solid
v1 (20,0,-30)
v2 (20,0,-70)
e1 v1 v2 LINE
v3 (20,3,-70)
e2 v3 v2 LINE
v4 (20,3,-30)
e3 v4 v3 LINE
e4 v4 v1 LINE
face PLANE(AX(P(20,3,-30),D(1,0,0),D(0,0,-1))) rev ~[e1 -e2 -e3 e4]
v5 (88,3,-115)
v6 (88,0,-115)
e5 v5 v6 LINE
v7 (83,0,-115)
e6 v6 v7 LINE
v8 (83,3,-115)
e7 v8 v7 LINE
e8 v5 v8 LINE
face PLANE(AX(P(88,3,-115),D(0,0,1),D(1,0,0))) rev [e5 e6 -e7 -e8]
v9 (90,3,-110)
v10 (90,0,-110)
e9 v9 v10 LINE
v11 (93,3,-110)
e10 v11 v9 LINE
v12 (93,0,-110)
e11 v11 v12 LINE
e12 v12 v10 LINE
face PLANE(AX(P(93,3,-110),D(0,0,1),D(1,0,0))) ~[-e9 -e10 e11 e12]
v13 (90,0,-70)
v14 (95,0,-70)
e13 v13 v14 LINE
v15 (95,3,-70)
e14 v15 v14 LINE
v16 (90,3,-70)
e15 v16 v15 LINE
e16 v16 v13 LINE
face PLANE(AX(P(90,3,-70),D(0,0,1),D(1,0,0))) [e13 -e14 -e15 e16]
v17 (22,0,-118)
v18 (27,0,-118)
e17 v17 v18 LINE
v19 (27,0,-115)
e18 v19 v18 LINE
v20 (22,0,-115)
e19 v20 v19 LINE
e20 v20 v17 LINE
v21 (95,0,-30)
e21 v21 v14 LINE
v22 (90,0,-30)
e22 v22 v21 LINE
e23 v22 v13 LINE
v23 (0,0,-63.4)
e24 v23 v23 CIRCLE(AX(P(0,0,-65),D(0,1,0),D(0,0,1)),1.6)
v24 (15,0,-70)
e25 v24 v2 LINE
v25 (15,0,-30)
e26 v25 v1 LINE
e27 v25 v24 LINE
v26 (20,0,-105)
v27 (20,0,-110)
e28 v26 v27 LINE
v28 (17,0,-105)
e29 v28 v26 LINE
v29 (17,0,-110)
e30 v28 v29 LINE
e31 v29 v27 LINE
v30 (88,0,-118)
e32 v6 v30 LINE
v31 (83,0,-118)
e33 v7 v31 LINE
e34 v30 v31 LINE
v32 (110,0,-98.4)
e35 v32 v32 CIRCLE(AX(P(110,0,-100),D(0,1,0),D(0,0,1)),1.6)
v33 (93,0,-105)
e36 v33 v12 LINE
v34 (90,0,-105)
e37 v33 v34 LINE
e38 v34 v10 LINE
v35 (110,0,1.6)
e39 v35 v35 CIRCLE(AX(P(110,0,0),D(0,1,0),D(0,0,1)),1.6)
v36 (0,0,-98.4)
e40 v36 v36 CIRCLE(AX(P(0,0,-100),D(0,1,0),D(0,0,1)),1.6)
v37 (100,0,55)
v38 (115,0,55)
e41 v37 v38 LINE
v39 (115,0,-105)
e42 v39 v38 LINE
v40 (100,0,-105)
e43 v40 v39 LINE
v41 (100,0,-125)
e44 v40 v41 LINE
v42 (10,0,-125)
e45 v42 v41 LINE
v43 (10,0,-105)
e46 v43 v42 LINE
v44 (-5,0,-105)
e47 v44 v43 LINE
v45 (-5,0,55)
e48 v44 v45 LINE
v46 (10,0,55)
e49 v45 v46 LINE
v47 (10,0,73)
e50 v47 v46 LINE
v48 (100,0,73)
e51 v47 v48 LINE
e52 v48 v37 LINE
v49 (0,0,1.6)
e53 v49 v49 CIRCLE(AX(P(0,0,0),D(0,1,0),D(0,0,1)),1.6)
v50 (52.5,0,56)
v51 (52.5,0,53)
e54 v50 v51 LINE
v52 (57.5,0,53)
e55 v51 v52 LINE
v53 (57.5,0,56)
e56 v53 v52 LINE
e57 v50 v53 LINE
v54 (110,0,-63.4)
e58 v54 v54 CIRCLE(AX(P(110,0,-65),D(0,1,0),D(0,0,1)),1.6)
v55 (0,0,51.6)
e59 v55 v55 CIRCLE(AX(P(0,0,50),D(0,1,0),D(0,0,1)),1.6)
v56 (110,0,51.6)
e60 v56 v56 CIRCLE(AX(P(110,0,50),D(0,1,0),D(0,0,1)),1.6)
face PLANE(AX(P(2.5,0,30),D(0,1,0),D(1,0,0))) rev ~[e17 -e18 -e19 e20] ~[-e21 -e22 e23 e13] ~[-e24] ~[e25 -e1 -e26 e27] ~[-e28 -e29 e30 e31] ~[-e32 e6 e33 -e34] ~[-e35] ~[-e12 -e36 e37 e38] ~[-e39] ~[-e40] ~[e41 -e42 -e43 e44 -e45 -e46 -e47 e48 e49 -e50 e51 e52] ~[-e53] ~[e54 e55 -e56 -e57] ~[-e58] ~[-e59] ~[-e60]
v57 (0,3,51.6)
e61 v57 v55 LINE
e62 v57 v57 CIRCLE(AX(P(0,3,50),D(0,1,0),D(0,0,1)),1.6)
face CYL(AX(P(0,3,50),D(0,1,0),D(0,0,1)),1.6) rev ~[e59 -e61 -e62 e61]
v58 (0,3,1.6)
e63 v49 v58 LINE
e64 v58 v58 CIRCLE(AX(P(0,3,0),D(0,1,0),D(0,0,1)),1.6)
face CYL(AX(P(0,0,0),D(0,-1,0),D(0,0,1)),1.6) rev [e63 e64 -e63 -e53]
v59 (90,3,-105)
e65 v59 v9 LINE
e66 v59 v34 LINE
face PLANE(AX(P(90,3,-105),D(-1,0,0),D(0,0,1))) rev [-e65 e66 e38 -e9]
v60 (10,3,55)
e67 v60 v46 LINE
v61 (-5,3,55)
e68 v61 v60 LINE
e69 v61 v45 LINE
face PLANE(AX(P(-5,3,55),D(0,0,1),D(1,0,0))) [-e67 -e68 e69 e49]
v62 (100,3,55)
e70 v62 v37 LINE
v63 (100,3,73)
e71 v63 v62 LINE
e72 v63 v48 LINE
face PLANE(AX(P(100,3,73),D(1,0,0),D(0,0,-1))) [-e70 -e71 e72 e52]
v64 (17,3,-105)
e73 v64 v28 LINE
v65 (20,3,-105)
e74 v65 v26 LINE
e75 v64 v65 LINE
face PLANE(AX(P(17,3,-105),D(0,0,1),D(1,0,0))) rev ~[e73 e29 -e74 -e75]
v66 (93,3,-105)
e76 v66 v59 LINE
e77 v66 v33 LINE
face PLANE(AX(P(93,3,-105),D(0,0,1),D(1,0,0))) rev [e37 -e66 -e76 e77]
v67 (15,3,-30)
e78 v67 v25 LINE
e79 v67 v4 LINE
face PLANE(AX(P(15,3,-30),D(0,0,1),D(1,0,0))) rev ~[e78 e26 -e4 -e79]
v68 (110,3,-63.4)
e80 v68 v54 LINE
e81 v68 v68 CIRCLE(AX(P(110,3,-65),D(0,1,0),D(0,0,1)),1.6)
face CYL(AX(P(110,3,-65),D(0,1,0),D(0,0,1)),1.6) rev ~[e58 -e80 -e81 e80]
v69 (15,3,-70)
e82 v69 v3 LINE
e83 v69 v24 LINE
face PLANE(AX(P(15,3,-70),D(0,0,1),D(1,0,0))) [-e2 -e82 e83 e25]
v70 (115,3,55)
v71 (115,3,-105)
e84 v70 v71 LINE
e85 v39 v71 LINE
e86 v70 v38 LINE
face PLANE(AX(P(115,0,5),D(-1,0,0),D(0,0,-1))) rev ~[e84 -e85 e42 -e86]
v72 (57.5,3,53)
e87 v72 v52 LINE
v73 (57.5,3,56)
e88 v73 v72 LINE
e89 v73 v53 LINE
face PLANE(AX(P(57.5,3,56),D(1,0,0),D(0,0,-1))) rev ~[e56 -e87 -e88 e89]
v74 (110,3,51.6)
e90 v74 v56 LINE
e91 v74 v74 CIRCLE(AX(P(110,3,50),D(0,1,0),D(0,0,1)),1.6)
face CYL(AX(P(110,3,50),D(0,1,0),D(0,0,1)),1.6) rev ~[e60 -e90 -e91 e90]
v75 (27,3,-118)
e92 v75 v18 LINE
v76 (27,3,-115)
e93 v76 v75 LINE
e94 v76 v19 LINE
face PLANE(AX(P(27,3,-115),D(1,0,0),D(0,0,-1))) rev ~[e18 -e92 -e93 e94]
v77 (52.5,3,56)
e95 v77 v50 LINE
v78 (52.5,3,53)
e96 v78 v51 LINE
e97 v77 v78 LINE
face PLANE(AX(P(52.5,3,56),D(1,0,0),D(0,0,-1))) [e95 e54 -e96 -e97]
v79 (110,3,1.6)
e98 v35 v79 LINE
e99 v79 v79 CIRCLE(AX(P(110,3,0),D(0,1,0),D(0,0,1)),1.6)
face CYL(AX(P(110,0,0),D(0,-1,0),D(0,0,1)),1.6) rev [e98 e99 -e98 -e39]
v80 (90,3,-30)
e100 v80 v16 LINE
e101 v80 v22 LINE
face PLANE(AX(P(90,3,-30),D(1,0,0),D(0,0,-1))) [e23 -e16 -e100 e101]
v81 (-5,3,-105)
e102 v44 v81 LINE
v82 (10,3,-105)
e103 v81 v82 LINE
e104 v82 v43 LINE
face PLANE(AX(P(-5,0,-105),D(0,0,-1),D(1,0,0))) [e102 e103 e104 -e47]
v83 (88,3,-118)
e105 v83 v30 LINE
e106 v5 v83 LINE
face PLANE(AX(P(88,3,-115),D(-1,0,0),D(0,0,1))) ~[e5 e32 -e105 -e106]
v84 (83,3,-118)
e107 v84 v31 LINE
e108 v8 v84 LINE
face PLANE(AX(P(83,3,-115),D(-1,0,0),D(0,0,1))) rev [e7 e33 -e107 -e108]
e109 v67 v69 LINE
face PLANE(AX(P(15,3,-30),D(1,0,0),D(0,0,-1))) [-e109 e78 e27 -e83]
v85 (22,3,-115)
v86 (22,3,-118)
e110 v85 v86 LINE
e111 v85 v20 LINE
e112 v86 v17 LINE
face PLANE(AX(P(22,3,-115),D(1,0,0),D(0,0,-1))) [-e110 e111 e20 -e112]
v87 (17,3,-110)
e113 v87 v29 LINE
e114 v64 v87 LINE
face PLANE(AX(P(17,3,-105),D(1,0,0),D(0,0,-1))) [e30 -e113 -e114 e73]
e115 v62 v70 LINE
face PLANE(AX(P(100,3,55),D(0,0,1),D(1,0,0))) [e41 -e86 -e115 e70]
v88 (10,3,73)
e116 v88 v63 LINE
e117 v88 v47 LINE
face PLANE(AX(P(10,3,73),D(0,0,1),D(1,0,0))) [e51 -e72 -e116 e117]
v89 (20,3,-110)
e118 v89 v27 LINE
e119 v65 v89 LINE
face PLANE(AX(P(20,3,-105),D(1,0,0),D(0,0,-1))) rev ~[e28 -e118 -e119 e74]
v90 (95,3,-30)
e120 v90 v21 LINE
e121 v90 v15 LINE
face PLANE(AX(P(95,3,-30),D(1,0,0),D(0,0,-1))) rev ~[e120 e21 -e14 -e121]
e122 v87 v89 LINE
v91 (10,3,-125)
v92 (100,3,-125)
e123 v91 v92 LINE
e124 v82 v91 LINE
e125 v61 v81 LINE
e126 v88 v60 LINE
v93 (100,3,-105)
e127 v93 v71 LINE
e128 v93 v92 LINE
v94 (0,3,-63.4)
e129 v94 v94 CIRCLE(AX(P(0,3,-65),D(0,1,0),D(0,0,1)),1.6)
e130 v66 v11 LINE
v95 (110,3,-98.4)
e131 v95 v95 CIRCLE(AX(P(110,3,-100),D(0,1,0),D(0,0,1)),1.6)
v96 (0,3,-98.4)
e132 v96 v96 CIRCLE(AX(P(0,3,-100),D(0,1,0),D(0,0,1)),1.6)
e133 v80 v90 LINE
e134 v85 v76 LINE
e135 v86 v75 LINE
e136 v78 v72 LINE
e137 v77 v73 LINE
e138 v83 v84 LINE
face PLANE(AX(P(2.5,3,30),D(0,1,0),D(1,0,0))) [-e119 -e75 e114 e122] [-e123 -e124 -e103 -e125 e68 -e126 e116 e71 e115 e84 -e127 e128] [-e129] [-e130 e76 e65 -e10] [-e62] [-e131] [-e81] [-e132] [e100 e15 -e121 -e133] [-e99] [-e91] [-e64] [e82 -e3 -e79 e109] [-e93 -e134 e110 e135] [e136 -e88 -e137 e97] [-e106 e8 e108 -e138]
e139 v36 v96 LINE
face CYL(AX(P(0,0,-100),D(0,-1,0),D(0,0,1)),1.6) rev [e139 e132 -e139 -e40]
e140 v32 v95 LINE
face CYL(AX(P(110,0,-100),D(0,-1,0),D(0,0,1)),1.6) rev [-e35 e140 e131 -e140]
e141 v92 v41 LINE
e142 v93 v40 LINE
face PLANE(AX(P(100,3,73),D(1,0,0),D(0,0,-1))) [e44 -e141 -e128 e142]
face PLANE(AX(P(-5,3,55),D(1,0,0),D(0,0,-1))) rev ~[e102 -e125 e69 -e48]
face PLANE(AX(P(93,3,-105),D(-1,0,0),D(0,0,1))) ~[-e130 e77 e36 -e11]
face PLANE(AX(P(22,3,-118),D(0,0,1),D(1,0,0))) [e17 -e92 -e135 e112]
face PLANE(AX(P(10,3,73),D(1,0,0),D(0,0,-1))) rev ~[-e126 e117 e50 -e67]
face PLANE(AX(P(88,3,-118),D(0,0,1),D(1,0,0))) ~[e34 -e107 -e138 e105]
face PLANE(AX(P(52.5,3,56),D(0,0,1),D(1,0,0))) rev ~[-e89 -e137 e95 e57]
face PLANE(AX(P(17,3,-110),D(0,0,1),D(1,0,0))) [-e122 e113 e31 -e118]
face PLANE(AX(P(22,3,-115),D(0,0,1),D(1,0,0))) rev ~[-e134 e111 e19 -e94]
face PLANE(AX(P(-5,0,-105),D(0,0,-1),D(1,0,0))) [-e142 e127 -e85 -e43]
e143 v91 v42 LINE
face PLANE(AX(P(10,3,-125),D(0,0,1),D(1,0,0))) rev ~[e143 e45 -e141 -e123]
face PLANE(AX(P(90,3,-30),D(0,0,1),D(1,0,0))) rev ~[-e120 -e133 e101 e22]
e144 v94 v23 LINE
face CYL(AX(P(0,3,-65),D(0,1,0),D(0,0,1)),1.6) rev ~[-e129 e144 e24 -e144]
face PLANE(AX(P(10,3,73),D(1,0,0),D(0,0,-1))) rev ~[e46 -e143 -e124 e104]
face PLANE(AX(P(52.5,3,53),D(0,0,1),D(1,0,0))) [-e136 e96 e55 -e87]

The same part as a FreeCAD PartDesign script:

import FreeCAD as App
import Part
import Sketcher

V = App.Vector


def add_polygon(sketch, points):
    """Adds a closed chain of lines whose ends are joined by coincident constraints."""
    first, n = sketch.GeometryCount, len(points)
    for a, b in zip(points, points[1:] + points[:1]):
        sketch.addGeometry(Part.LineSegment(App.Vector(*a, 0), App.Vector(*b, 0)), False)
    for i in range(n):
        sketch.addConstraint(Sketcher.Constraint("Coincident", first + i, 2, first + (i + 1) % n, 1))

doc = App.newDocument("Part")
params = doc.addObject("Spreadsheet::Sheet", "Params")
for row, (alias, value) in enumerate([
    ("sketch1_diameter", "3.2 mm"),
    ("sketch1_width", "120 mm"),
    ("sketch1_height", "110 mm"),
    ("pad1_length", "3 mm"),
    ("sketch2_width", "90 mm"),
    ("sketch2_height", "198 mm"),
    ("pad2_length", "3 mm"),
    ("sketch3_width", "5 mm"),
    ("sketch3_width2", "3 mm"),
    ("sketch4_width", "5 mm"),
    ("sketch4_height", "3 mm"),
    ("sketch5_width", "5 mm"),
    ("sketch5_height", "40 mm"),
    ("sketch6_width", "15 mm"),
    ("sketch6_height", "50 mm"),
    ("pad3_length", "3 mm"),
    ("sketch7_diameter", "3.2 mm"),
], start=1):
    params.set(f"A{row}", alias)
    params.set(f"B{row}", "=" + value)
    params.setAlias(f"B{row}", alias)

body = doc.addObject("PartDesign::Body", "Body")

sketch1 = body.newObject("Sketcher::SketchObject", "Sketch")
sketch1.AttachmentSupport = (doc.getObject("XZ_Plane"), [""])
sketch1.MapMode = "FlatFace"
add_polygon(sketch1, [(-5, -105), (-5, 5), (115, 5), (115, -105)])
sketch1.addGeometry(Part.Circle(V(0, 0, 0), V(0, 0, 1), 1.6), False)
sketch1.addGeometry(Part.Circle(V(110, 0, 0), V(0, 0, 1), 1.6), False)
sketch1.addGeometry(Part.Circle(V(0, -100, 0), V(0, 0, 1), 1.6), False)
sketch1.addGeometry(Part.Circle(V(110, -100, 0), V(0, 0, 1), 1.6), False)
sketch1.addConstraint(Sketcher.Constraint("Vertical", 0))
sketch1.addConstraint(Sketcher.Constraint("Horizontal", 1))
sketch1.addConstraint(Sketcher.Constraint("Vertical", 2))
sketch1.addConstraint(Sketcher.Constraint("Horizontal", 3))
sketch1.addConstraint(Sketcher.Constraint("Coincident", 4, 3, -1, 1))
sketch1.addConstraint(Sketcher.Constraint("Equal", 4, 5))
sketch1.addConstraint(Sketcher.Constraint("Equal", 5, 6))
sketch1.addConstraint(Sketcher.Constraint("Equal", 6, 7))
sketch1.addConstraint(Sketcher.Constraint("PointOnObject", 5, 3, -1))
sketch1.addConstraint(Sketcher.Constraint("PointOnObject", 6, 3, -2))
sketch1.addConstraint(Sketcher.Constraint("Horizontal", 6, 3, 7, 3))
sketch1.addConstraint(Sketcher.Constraint("Vertical", 5, 3, 7, 3))
sketch1.addConstraint(Sketcher.Constraint("Diameter", 4, 3.2))
sketch1.addConstraint(Sketcher.Constraint("DistanceX", 1, 1, 1, 2, 120.0))
sketch1.addConstraint(Sketcher.Constraint("DistanceY", 0, 1, 0, 2, 110.0))
sketch1.addConstraint(Sketcher.Constraint("DistanceX", -1, 1, 5, 3, 110.0))
sketch1.addConstraint(Sketcher.Constraint("DistanceY", 6, 3, -1, 1, 100.0))
sketch1.addConstraint(Sketcher.Constraint("DistanceX", 0, 2, -1, 1, 5.0))
sketch1.addConstraint(Sketcher.Constraint("DistanceY", -1, 1, 0, 2, 5.0))
sketch1.setExpression("Constraints[16]", "Params.sketch1_diameter")
sketch1.setExpression("Constraints[17]", "Params.sketch1_width")
sketch1.setExpression("Constraints[18]", "Params.sketch1_height")
pad1 = body.newObject("PartDesign::Pad", "Pad")
pad1.Profile = sketch1
pad1.setExpression("Length", "Params.pad1_length")
pad1.Reversed = True

sketch2 = body.newObject("Sketcher::SketchObject", "Sketch001")
sketch2.AttachmentSupport = (doc.getObject("XZ_Plane"), [""])
sketch2.MapMode = "FlatFace"
sketch2.AttachmentOffset = App.Placement(V(0, 0, -3), App.Rotation())
add_polygon(sketch2, [(10, -125), (10, 73), (100, 73), (100, -125)])
sketch2.addConstraint(Sketcher.Constraint("Vertical", 0))
sketch2.addConstraint(Sketcher.Constraint("Horizontal", 1))
sketch2.addConstraint(Sketcher.Constraint("Vertical", 2))
sketch2.addConstraint(Sketcher.Constraint("Horizontal", 3))
sketch2.addConstraint(Sketcher.Constraint("DistanceX", 1, 1, 1, 2, 90.0))
sketch2.addConstraint(Sketcher.Constraint("DistanceY", 0, 1, 0, 2, 198.0))
sketch2.addConstraint(Sketcher.Constraint("DistanceX", -1, 1, 0, 2, 10.0))
sketch2.addConstraint(Sketcher.Constraint("DistanceY", -1, 1, 0, 2, 73.0))
sketch2.setExpression("Constraints[8]", "Params.sketch2_width")
sketch2.setExpression("Constraints[9]", "Params.sketch2_height")
pad2 = body.newObject("PartDesign::Pad", "Pad001")
pad2.Profile = sketch2
pad2.setExpression("Length", "Params.pad2_length")

sketch3 = body.newObject("Sketcher::SketchObject", "Sketch002")
sketch3.AttachmentSupport = (doc.getObject("XZ_Plane"), [""])
sketch3.MapMode = "FlatFace"
sketch3.AttachmentOffset = App.Placement(V(0, 0, -3), App.Rotation())
add_polygon(sketch3, [(22, -118), (22, -115), (27, -115), (27, -118)])
add_polygon(sketch3, [(17, -110), (17, -105), (20, -105), (20, -110)])
sketch3.addConstraint(Sketcher.Constraint("Vertical", 0))
sketch3.addConstraint(Sketcher.Constraint("Horizontal", 1))
sketch3.addConstraint(Sketcher.Constraint("Vertical", 2))
sketch3.addConstraint(Sketcher.Constraint("Horizontal", 3))
sketch3.addConstraint(Sketcher.Constraint("Vertical", 4))
sketch3.addConstraint(Sketcher.Constraint("Horizontal", 5))
sketch3.addConstraint(Sketcher.Constraint("Vertical", 6))
sketch3.addConstraint(Sketcher.Constraint("Horizontal", 7))
sketch3.addConstraint(Sketcher.Constraint("Equal", 7, 0))
sketch3.addConstraint(Sketcher.Constraint("Equal", 3, 4))
sketch3.addConstraint(Sketcher.Constraint("DistanceX", 1, 1, 1, 2, 5.0))
sketch3.addConstraint(Sketcher.Constraint("DistanceX", 5, 1, 5, 2, 3.0))
sketch3.addConstraint(Sketcher.Constraint("DistanceX", -1, 1, 0, 2, 22.0))
sketch3.addConstraint(Sketcher.Constraint("DistanceY", 0, 2, -1, 1, 115.0))
sketch3.addConstraint(Sketcher.Constraint("DistanceX", -1, 1, 4, 2, 17.0))
sketch3.addConstraint(Sketcher.Constraint("DistanceY", 4, 2, -1, 1, 105.0))
sketch3.setExpression("Constraints[18]", "Params.sketch3_width")
sketch3.setExpression("Constraints[19]", "Params.sketch3_width2")
pocket1 = body.newObject("PartDesign::Pocket", "Pocket")
pocket1.Profile = sketch3
pocket1.Type = "ThroughAll"
pocket1.Reversed = True
doc.recompute()

datumplane = body.newObject("PartDesign::Plane", "DatumPlane")
datumplane.AttachmentSupport = (doc.getObject("YZ_Plane"), [""])
datumplane.MapMode = "FlatFace"
datumplane.AttachmentOffset = App.Placement(V(0, 0, 55), App.Rotation())
mirrored = body.newObject("PartDesign::Mirrored", "Mirrored")
mirrored.Originals = [pocket1]
mirrored.MirrorPlane = (datumplane, [""])
body.Tip = mirrored

sketch4 = body.newObject("Sketcher::SketchObject", "Sketch003")
sketch4.AttachmentSupport = (doc.getObject("XZ_Plane"), [""])
sketch4.MapMode = "FlatFace"
sketch4.AttachmentOffset = App.Placement(V(0, 0, -3), App.Rotation())
add_polygon(sketch4, [(52.5, 53), (52.5, 56), (57.5, 56), (57.5, 53)])
sketch4.addConstraint(Sketcher.Constraint("Vertical", 0))
sketch4.addConstraint(Sketcher.Constraint("Horizontal", 1))
sketch4.addConstraint(Sketcher.Constraint("Vertical", 2))
sketch4.addConstraint(Sketcher.Constraint("Horizontal", 3))
sketch4.addConstraint(Sketcher.Constraint("DistanceX", 1, 1, 1, 2, 5.0))
sketch4.addConstraint(Sketcher.Constraint("DistanceY", 0, 1, 0, 2, 3.0))
sketch4.addConstraint(Sketcher.Constraint("DistanceY", -1, 1, 0, 2, 56.0))
sketch4.addConstraint(Sketcher.Constraint("DistanceX", -1, 1, 0, 2, 52.5))
sketch4.setExpression("Constraints[8]", "Params.sketch4_width")
sketch4.setExpression("Constraints[9]", "Params.sketch4_height")
pocket2 = body.newObject("PartDesign::Pocket", "Pocket001")
pocket2.Profile = sketch4
pocket2.Type = "ThroughAll"
pocket2.Reversed = True

sketch5 = body.newObject("Sketcher::SketchObject", "Sketch004")
sketch5.AttachmentSupport = (doc.getObject("XZ_Plane"), [""])
sketch5.MapMode = "FlatFace"
sketch5.AttachmentOffset = App.Placement(V(0, 0, -3), App.Rotation())
add_polygon(sketch5, [(15, -70), (15, -30), (20, -30), (20, -70)])
add_polygon(sketch5, [(90, -70), (90, -30), (95, -30), (95, -70)])
sketch5.addConstraint(Sketcher.Constraint("Vertical", 0))
sketch5.addConstraint(Sketcher.Constraint("Horizontal", 1))
sketch5.addConstraint(Sketcher.Constraint("Vertical", 2))
sketch5.addConstraint(Sketcher.Constraint("Horizontal", 3))
sketch5.addConstraint(Sketcher.Constraint("Vertical", 4))
sketch5.addConstraint(Sketcher.Constraint("Horizontal", 5))
sketch5.addConstraint(Sketcher.Constraint("Vertical", 6))
sketch5.addConstraint(Sketcher.Constraint("Horizontal", 7))
sketch5.addConstraint(Sketcher.Constraint("Horizontal", 1, 2, 4, 2))
sketch5.addConstraint(Sketcher.Constraint("Horizontal", 3, 2, 6, 2))
sketch5.addConstraint(Sketcher.Constraint("Equal", 3, 5))
sketch5.addConstraint(Sketcher.Constraint("DistanceX", 1, 1, 1, 2, 5.0))
sketch5.addConstraint(Sketcher.Constraint("DistanceY", 0, 1, 0, 2, 40.0))
sketch5.addConstraint(Sketcher.Constraint("DistanceX", -1, 1, 0, 2, 15.0))
sketch5.addConstraint(Sketcher.Constraint("DistanceY", 0, 2, -1, 1, 30.0))
sketch5.addConstraint(Sketcher.Constraint("DistanceX", -1, 1, 4, 2, 90.0))
sketch5.setExpression("Constraints[19]", "Params.sketch5_width")
sketch5.setExpression("Constraints[20]", "Params.sketch5_height")
pocket3 = body.newObject("PartDesign::Pocket", "Pocket002")
pocket3.Profile = sketch5
pocket3.Type = "ThroughAll"
pocket3.Reversed = True

sketch6 = body.newObject("Sketcher::SketchObject", "Sketch005")
sketch6.AttachmentSupport = (doc.getObject("XZ_Plane"), [""])
sketch6.MapMode = "FlatFace"
sketch6.AttachmentOffset = App.Placement(V(0, 0, -3), App.Rotation())
add_polygon(sketch6, [(-5, 5), (-5, 55), (10, 55), (10, 5)])
add_polygon(sketch6, [(100, 5), (100, 55), (115, 55), (115, 5)])
sketch6.addConstraint(Sketcher.Constraint("Vertical", 0))
sketch6.addConstraint(Sketcher.Constraint("Horizontal", 1))
sketch6.addConstraint(Sketcher.Constraint("Vertical", 2))
sketch6.addConstraint(Sketcher.Constraint("Horizontal", 3))
sketch6.addConstraint(Sketcher.Constraint("Vertical", 4))
sketch6.addConstraint(Sketcher.Constraint("Horizontal", 5))
sketch6.addConstraint(Sketcher.Constraint("Vertical", 6))
sketch6.addConstraint(Sketcher.Constraint("Horizontal", 7))
sketch6.addConstraint(Sketcher.Constraint("Horizontal", 1, 2, 4, 2))
sketch6.addConstraint(Sketcher.Constraint("Horizontal", 3, 2, 6, 2))
sketch6.addConstraint(Sketcher.Constraint("Equal", 3, 5))
sketch6.addConstraint(Sketcher.Constraint("DistanceX", 1, 1, 1, 2, 15.0))
sketch6.addConstraint(Sketcher.Constraint("DistanceY", 0, 1, 0, 2, 50.0))
sketch6.addConstraint(Sketcher.Constraint("DistanceX", 0, 2, -1, 1, 5.0))
sketch6.addConstraint(Sketcher.Constraint("DistanceY", -1, 1, 0, 2, 55.0))
sketch6.addConstraint(Sketcher.Constraint("DistanceX", -1, 1, 4, 2, 100.0))
sketch6.setExpression("Constraints[19]", "Params.sketch6_width")
sketch6.setExpression("Constraints[20]", "Params.sketch6_height")
pad3 = body.newObject("PartDesign::Pad", "Pad002")
pad3.Profile = sketch6
pad3.setExpression("Length", "Params.pad3_length")

sketch7 = body.newObject("Sketcher::SketchObject", "Sketch006")
sketch7.AttachmentSupport = (doc.getObject("XZ_Plane"), [""])
sketch7.MapMode = "FlatFace"
sketch7.AttachmentOffset = App.Placement(V(0, 0, -3), App.Rotation())
sketch7.addGeometry(Part.Circle(V(0, 50, 0), V(0, 0, 1), 1.6), False)
sketch7.addGeometry(Part.Circle(V(0, -65, 0), V(0, 0, 1), 1.6), False)
sketch7.addGeometry(Part.Circle(V(110, 50, 0), V(0, 0, 1), 1.6), False)
sketch7.addGeometry(Part.Circle(V(110, -65, 0), V(0, 0, 1), 1.6), False)
sketch7.addConstraint(Sketcher.Constraint("Equal", 0, 1))
sketch7.addConstraint(Sketcher.Constraint("Equal", 1, 2))
sketch7.addConstraint(Sketcher.Constraint("Equal", 2, 3))
sketch7.addConstraint(Sketcher.Constraint("PointOnObject", 0, 3, -2))
sketch7.addConstraint(Sketcher.Constraint("PointOnObject", 1, 3, -2))
sketch7.addConstraint(Sketcher.Constraint("Horizontal", 0, 3, 2, 3))
sketch7.addConstraint(Sketcher.Constraint("Horizontal", 1, 3, 3, 3))
sketch7.addConstraint(Sketcher.Constraint("Vertical", 2, 3, 3, 3))
sketch7.addConstraint(Sketcher.Constraint("Diameter", 0, 3.2))
sketch7.addConstraint(Sketcher.Constraint("DistanceY", -1, 1, 0, 3, 50.0))
sketch7.addConstraint(Sketcher.Constraint("DistanceY", 1, 3, -1, 1, 65.0))
sketch7.addConstraint(Sketcher.Constraint("DistanceX", -1, 1, 2, 3, 110.0))
sketch7.setExpression("Constraints[8]", "Params.sketch7_diameter")
pocket4 = body.newObject("PartDesign::Pocket", "Pocket003")
pocket4.Profile = sketch7
pocket4.Type = "ThroughAll"
pocket4.Reversed = True

doc.recompute()
